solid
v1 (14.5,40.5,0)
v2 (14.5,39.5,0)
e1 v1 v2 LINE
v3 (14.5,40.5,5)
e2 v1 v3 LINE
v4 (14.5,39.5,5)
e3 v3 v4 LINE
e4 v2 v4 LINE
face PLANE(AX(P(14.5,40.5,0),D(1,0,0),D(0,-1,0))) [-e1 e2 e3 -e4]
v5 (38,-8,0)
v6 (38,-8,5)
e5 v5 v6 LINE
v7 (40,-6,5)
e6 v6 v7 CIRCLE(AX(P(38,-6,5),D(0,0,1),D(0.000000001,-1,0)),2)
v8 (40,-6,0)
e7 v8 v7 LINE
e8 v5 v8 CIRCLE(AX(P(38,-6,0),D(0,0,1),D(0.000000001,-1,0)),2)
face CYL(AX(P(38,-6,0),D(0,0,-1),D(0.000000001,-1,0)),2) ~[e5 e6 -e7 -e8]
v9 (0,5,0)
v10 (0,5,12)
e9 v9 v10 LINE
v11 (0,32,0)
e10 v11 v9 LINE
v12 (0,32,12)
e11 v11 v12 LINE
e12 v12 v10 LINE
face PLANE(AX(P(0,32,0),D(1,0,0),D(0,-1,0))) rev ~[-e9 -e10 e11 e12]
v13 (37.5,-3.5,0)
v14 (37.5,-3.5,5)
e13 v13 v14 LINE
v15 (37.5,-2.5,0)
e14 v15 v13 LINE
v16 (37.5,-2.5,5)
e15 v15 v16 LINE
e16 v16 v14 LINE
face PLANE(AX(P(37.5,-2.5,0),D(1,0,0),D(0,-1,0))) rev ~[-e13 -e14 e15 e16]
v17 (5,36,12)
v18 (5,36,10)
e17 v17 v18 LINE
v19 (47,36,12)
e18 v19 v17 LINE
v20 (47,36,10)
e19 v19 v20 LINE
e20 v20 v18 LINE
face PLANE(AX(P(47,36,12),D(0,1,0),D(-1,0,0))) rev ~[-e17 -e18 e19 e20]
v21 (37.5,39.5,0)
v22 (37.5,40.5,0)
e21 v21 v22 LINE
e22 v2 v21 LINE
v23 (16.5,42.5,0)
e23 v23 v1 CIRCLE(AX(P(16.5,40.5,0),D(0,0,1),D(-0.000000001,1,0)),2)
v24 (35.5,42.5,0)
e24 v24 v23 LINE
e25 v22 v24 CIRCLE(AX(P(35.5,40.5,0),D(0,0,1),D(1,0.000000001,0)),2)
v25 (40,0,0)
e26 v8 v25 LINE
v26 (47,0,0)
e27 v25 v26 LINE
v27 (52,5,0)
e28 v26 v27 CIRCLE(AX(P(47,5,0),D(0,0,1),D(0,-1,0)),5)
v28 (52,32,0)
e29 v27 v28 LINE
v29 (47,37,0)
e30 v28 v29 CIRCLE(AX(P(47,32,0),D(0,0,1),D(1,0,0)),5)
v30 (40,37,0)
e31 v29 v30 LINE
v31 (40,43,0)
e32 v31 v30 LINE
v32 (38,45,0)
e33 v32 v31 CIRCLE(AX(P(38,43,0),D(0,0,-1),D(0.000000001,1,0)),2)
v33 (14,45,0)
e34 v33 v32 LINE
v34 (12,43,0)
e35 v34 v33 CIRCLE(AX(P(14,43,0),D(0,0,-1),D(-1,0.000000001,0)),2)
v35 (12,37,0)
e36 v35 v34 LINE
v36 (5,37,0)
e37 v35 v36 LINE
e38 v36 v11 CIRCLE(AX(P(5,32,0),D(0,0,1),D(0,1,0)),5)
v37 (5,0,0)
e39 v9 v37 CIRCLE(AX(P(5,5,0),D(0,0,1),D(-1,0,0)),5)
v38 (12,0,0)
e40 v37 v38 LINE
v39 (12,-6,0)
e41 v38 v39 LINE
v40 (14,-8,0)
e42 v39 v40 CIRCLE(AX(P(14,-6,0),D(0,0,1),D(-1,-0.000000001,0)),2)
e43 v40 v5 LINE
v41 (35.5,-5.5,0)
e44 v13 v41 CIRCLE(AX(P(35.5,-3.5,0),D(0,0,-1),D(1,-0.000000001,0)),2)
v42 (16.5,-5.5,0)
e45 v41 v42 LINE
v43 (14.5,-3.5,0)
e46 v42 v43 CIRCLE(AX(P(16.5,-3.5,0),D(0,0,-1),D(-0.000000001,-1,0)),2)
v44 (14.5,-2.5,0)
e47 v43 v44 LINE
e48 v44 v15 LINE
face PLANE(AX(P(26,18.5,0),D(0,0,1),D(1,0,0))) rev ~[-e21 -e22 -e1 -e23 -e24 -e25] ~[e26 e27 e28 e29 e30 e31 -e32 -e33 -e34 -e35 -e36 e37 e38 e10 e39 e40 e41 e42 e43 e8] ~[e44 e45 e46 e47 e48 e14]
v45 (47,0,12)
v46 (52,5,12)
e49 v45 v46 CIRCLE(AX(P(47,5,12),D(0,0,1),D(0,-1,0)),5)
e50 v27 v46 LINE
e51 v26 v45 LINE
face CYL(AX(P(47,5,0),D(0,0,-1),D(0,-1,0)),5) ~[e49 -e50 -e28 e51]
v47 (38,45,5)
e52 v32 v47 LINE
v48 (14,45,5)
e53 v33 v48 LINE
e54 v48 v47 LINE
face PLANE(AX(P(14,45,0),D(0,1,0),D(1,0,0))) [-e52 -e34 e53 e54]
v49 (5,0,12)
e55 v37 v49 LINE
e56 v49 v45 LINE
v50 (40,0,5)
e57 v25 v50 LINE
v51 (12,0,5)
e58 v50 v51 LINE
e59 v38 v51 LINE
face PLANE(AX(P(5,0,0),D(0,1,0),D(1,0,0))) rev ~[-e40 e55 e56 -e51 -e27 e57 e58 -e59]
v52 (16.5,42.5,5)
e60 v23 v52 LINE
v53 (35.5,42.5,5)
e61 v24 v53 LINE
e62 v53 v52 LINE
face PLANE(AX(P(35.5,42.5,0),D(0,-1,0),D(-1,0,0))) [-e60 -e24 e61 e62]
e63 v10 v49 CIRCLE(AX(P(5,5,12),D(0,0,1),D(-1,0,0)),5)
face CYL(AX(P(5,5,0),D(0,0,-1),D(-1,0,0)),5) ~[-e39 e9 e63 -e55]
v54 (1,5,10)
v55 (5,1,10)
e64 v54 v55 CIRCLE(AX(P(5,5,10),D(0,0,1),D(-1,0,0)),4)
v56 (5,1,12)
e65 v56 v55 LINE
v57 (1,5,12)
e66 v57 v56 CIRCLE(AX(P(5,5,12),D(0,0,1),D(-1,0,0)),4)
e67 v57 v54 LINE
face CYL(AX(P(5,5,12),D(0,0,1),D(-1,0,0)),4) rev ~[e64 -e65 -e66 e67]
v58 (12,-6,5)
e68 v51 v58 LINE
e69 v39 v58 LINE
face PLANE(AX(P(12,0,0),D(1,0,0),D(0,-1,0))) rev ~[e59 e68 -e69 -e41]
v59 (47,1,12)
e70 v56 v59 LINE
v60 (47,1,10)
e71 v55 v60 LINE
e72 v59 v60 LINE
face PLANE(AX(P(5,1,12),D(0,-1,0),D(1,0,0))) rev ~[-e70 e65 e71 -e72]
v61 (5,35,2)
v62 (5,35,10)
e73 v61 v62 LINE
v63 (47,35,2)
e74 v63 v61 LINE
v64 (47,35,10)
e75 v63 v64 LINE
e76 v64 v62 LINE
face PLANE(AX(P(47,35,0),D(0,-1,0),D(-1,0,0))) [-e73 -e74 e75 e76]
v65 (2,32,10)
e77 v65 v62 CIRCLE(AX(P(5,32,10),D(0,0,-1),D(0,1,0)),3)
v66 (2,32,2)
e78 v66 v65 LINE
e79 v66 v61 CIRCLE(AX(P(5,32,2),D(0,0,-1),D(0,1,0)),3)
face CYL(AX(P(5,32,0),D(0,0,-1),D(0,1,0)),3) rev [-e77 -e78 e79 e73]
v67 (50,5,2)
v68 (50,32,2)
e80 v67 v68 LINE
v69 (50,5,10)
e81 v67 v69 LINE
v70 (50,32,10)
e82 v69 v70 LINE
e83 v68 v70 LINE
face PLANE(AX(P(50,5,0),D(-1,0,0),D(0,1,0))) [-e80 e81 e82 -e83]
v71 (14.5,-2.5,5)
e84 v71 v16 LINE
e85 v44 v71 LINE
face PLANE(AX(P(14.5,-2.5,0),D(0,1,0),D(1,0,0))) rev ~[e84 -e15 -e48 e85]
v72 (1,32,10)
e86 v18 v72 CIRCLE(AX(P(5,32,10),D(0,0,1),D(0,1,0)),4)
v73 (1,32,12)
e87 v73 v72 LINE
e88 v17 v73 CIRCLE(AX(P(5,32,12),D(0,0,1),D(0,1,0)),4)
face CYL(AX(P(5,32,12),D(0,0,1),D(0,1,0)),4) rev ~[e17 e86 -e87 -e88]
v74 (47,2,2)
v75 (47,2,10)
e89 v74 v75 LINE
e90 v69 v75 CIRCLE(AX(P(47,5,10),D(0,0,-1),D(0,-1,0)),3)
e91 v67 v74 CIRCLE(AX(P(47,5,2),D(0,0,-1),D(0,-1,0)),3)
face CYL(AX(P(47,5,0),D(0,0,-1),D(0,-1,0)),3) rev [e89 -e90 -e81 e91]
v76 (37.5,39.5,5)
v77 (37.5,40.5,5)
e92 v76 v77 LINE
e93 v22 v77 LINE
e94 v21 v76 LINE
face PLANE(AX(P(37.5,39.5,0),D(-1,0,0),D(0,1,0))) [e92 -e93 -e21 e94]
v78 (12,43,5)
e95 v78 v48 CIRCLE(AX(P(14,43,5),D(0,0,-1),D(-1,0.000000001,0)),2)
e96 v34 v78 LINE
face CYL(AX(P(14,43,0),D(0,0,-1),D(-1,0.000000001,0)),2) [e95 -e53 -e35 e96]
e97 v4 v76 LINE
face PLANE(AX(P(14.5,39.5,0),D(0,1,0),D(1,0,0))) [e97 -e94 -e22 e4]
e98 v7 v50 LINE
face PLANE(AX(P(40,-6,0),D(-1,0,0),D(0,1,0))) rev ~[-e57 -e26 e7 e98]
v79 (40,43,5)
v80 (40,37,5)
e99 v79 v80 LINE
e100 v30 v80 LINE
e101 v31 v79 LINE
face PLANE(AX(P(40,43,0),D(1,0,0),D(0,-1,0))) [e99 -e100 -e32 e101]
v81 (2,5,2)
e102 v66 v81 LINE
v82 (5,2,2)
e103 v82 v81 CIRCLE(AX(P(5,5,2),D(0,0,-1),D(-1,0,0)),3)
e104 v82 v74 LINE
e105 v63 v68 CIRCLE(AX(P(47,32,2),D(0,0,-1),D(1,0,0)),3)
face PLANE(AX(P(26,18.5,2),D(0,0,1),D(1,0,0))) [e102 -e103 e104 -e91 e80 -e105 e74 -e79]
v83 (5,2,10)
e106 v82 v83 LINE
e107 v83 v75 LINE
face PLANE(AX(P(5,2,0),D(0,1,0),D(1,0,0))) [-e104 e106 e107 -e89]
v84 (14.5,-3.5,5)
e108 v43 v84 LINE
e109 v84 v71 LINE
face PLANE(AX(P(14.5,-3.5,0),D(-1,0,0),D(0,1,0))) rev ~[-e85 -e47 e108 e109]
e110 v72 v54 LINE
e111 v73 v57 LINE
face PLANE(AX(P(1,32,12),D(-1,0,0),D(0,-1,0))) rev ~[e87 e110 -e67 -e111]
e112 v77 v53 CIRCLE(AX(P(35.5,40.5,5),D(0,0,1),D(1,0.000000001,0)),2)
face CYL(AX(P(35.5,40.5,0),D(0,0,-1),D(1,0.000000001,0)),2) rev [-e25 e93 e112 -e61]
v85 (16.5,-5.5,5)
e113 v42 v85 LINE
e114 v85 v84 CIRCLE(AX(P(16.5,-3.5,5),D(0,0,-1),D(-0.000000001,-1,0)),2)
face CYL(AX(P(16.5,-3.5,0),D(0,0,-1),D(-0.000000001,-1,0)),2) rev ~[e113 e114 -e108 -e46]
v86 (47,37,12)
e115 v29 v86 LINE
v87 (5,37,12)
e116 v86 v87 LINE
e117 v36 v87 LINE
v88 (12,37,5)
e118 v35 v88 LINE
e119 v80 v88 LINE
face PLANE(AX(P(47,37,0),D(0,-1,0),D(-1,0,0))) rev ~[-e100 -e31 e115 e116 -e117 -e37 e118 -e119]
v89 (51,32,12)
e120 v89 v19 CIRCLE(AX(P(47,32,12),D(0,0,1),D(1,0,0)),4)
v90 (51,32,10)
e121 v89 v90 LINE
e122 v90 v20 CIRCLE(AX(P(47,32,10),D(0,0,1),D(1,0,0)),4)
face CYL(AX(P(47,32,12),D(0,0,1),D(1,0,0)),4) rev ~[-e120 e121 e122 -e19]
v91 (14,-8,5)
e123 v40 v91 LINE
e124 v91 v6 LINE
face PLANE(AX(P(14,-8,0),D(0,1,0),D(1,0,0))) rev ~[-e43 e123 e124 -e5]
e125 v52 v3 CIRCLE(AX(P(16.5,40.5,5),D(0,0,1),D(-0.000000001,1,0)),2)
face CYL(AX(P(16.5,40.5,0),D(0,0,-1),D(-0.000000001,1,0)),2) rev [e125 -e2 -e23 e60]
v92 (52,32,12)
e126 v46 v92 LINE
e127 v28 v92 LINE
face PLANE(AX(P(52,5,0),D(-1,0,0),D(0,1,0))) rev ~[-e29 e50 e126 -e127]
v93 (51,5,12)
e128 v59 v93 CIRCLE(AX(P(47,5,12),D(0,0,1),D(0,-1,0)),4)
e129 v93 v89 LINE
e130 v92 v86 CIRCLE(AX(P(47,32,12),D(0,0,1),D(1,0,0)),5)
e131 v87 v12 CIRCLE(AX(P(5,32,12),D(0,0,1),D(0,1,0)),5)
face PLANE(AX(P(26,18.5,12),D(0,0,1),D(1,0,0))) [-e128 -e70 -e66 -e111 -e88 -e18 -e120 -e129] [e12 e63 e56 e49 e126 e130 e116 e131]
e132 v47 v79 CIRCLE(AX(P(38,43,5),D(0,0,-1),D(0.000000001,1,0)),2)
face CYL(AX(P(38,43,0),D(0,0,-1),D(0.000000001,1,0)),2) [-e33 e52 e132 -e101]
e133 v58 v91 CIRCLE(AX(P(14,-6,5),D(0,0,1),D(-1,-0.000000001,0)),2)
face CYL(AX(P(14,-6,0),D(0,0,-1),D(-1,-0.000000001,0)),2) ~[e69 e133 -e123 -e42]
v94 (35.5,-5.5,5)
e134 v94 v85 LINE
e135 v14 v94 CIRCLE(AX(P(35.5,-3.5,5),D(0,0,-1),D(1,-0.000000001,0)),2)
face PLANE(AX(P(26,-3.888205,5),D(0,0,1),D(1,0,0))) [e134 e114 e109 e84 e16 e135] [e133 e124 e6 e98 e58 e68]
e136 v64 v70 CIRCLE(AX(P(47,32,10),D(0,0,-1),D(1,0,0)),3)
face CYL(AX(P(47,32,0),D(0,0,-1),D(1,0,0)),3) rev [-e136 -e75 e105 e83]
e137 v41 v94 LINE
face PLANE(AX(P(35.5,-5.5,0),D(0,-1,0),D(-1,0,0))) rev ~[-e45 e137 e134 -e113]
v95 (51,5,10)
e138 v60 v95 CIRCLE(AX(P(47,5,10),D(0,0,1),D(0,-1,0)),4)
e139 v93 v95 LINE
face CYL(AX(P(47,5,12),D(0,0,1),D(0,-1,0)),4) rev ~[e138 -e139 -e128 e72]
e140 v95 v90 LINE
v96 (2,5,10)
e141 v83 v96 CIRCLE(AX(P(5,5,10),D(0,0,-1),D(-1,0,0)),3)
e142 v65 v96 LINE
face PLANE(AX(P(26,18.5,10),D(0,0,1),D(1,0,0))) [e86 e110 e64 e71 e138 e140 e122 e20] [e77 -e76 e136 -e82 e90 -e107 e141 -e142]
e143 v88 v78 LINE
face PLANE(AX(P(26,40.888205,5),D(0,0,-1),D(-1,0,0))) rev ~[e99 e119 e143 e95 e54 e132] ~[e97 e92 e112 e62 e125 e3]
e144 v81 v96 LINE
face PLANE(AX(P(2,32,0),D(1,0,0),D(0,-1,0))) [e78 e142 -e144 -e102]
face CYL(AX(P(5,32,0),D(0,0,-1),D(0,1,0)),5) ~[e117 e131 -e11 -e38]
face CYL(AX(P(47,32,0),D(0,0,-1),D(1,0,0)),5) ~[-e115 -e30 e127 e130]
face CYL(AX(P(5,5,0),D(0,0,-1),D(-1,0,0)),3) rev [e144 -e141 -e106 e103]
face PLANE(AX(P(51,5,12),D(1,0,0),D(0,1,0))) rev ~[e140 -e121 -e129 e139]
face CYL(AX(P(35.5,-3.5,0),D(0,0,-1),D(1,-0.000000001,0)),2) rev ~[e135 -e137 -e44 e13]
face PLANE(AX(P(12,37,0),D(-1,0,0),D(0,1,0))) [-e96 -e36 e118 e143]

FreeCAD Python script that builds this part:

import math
import FreeCAD as App
import Part
import Sketcher

V = App.Vector


def faces_at(feature, points):
    """Names of the faces that lie closest to the given points."""
    faces = feature.Shape.Faces
    near = lambda p: min(range(len(faces)), key=lambda i: faces[i].distToShape(Part.Vertex(*p))[0])
    return sorted({f"Face{near(p) + 1}" for p in points})

doc = App.newDocument("Part")
params = doc.addObject("Spreadsheet::Sheet", "Params")
for row, (alias, value) in enumerate([
    ("sketch1_radius", "5 mm"),
    ("sketch1_width", "42 mm"),
    ("sketch1_height", "27 mm"),
    ("pad1_length", "12 mm"),
    ("thickness_wall", "2 mm"),
    ("sketch2_radius", "4 mm"),
    ("sketch2_width", "42 mm"),
    ("sketch2_height", "27 mm"),
    ("pocket1_length", "2 mm"),
    ("sketch3_radius", "2 mm"),
    ("sketch3_width", "28 mm"),
    ("sketch3_width2", "23 mm"),
    ("sketch3_height", "6 mm"),
    ("sketch3_height2", "1 mm"),
    ("pad2_length", "5 mm"),
], start=1):
    params.set(f"A{row}", alias)
    params.set(f"B{row}", "=" + value)
    params.setAlias(f"B{row}", alias)

body = doc.addObject("PartDesign::Body", "Body")

sketch1 = body.newObject("Sketcher::SketchObject", "Sketch")
sketch1.AttachmentSupport = (doc.getObject("XY_Plane"), [""])
sketch1.MapMode = "FlatFace"
sketch1.addGeometry([
    Part.LineSegment(V(5, 0, 0), V(47, 0, 0)),
    Part.ArcOfCircle(Part.Circle(V(47, 5, 0), V(0, 0, 1), 5), math.radians(-90), math.radians(0)),
    Part.LineSegment(V(52, 5, 0), V(52, 32, 0)),
    Part.ArcOfCircle(Part.Circle(V(47, 32, 0), V(0, 0, 1), 5), math.radians(0), math.radians(90)),
    Part.LineSegment(V(47, 37, 0), V(5, 37, 0)),
    Part.ArcOfCircle(Part.Circle(V(5, 32, 0), V(0, 0, 1), 5), math.radians(90), math.radians(180)),
    Part.LineSegment(V(0, 32, 0), V(0, 5, 0)),
    Part.ArcOfCircle(Part.Circle(V(5, 5, 0), V(0, 0, 1), 5), math.radians(180), math.radians(270)),
], False)
sketch1.addConstraint([
    Sketcher.Constraint("Tangent", 0, 2, 1, 1),
    Sketcher.Constraint("Tangent", 1, 2, 2, 1),
    Sketcher.Constraint("Tangent", 2, 2, 3, 1),
    Sketcher.Constraint("Tangent", 3, 2, 4, 1),
    Sketcher.Constraint("Tangent", 4, 2, 5, 1),
    Sketcher.Constraint("Tangent", 5, 2, 6, 1),
    Sketcher.Constraint("Tangent", 6, 2, 7, 1),
    Sketcher.Constraint("Tangent", 7, 2, 0, 1),
    Sketcher.Constraint("Horizontal", 0),
    Sketcher.Constraint("Vertical", 2),
    Sketcher.Constraint("Horizontal", 4),
    Sketcher.Constraint("Vertical", 6),
    Sketcher.Constraint("Equal", 1, 3),
    Sketcher.Constraint("Equal", 3, 5),
    Sketcher.Constraint("Equal", 5, 7),
    Sketcher.Constraint("PointOnObject", 0, 2, -1),
    Sketcher.Constraint("PointOnObject", 5, 2, -2),
    Sketcher.Constraint("Radius", 1, 5.0),
    Sketcher.Constraint("DistanceX", 0, 1, 0, 2, 42.0),
    Sketcher.Constraint("DistanceY", 2, 1, 2, 2, 27.0),
])
sketch1.setExpression("Constraints[17]", "Params.sketch1_radius")
sketch1.setExpression("Constraints[18]", "Params.sketch1_width")
sketch1.setExpression("Constraints[19]", "Params.sketch1_height")
pad1 = body.newObject("PartDesign::Pad", "Pad")
pad1.Profile = sketch1
pad1.setExpression("Length", "Params.pad1_length")
doc.recompute()

thickness = body.newObject("PartDesign::Thickness", "Thickness")
thickness.Base = (pad1, faces_at(pad1, [(26, 18.5, 12)]))
thickness.setExpression("Value", "Params.thickness_wall")
thickness.Reversed = True
thickness.Join = "Intersection"

sketch2 = body.newObject("Sketcher::SketchObject", "Sketch001")
sketch2.AttachmentSupport = (doc.getObject("XY_Plane"), [""])
sketch2.MapMode = "FlatFace"
sketch2.AttachmentOffset = App.Placement(V(0, 0, 12), App.Rotation())
sketch2.addGeometry([
    Part.ArcOfCircle(Part.Circle(V(47, 32, 0), V(0, 0, 1), 4), math.radians(0), math.radians(90)),
    Part.LineSegment(V(47, 36, 0), V(5, 36, 0)),
    Part.ArcOfCircle(Part.Circle(V(5, 32, 0), V(0, 0, 1), 4), math.radians(90), math.radians(180)),
    Part.LineSegment(V(1, 32, 0), V(1, 5, 0)),
    Part.ArcOfCircle(Part.Circle(V(5, 5, 0), V(0, 0, 1), 4), math.radians(180), math.radians(270)),
    Part.LineSegment(V(5, 1, 0), V(47, 1, 0)),
    Part.ArcOfCircle(Part.Circle(V(47, 5, 0), V(0, 0, 1), 4), math.radians(-90), math.radians(0)),
    Part.LineSegment(V(51, 5, 0), V(51, 32, 0)),
], False)
sketch2.addConstraint([
    Sketcher.Constraint("Tangent", 0, 2, 1, 1),
    Sketcher.Constraint("Tangent", 1, 2, 2, 1),
    Sketcher.Constraint("Tangent", 2, 2, 3, 1),
    Sketcher.Constraint("Tangent", 3, 2, 4, 1),
    Sketcher.Constraint("Tangent", 4, 2, 5, 1),
    Sketcher.Constraint("Tangent", 5, 2, 6, 1),
    Sketcher.Constraint("Tangent", 6, 2, 7, 1),
    Sketcher.Constraint("Tangent", 7, 2, 0, 1),
    Sketcher.Constraint("Horizontal", 1),
    Sketcher.Constraint("Vertical", 3),
    Sketcher.Constraint("Horizontal", 5),
    Sketcher.Constraint("Vertical", 7),
    Sketcher.Constraint("Equal", 0, 2),
    Sketcher.Constraint("Equal", 2, 4),
    Sketcher.Constraint("Equal", 4, 6),
    Sketcher.Constraint("Radius", 0, 4.0),
    Sketcher.Constraint("DistanceX", 1, 2, 1, 1, 42.0),
    Sketcher.Constraint("DistanceY", 3, 2, 3, 1, 27.0),
    Sketcher.Constraint("DistanceX", -1, 1, 0, 3, 47.0),
    Sketcher.Constraint("DistanceY", -1, 1, 0, 3, 32.0),
])
sketch2.setExpression("Constraints[15]", "Params.sketch2_radius")
sketch2.setExpression("Constraints[16]", "Params.sketch2_width")
sketch2.setExpression("Constraints[17]", "Params.sketch2_height")
pocket1 = body.newObject("PartDesign::Pocket", "Pocket")
pocket1.Profile = sketch2
pocket1.setExpression("Length", "Params.pocket1_length")

sketch3 = body.newObject("Sketcher::SketchObject", "Sketch002")
sketch3.AttachmentSupport = (doc.getObject("XY_Plane"), [""])
sketch3.MapMode = "FlatFace"
sketch3.addGeometry([
    Part.LineSegment(V(40, 37, 0), V(12, 37, 0)),
    Part.LineSegment(V(12, 37, 0), V(12, 43, 0)),
    Part.ArcOfCircle(Part.Circle(V(14, 43, 0), V(0, 0, 1), 2), math.radians(90), math.radians(180)),
    Part.LineSegment(V(14, 45, 0), V(38, 45, 0)),
    Part.ArcOfCircle(Part.Circle(V(38, 43, 0), V(0, 0, 1), 2), math.radians(0), math.radians(90)),
    Part.LineSegment(V(40, 43, 0), V(40, 37, 0)),
    Part.LineSegment(V(14.5, 39.5, 0), V(37.5, 39.5, 0)),
    Part.LineSegment(V(37.5, 39.5, 0), V(37.5, 40.5, 0)),
    Part.ArcOfCircle(Part.Circle(V(35.5, 40.5, 0), V(0, 0, 1), 2), math.radians(0), math.radians(90)),
    Part.LineSegment(V(35.5, 42.5, 0), V(16.5, 42.5, 0)),
    Part.ArcOfCircle(Part.Circle(V(16.5, 40.5, 0), V(0, 0, 1), 2), math.radians(90), math.radians(180)),
    Part.LineSegment(V(14.5, 40.5, 0), V(14.5, 39.5, 0)),
    Part.LineSegment(V(12, 0, 0), V(40, 0, 0)),
    Part.LineSegment(V(40, 0, 0), V(40, -6, 0)),
    Part.ArcOfCircle(Part.Circle(V(38, -6, 0), V(0, 0, 1), 2), math.radians(-90), math.radians(0)),
    Part.LineSegment(V(38, -8, 0), V(14, -8, 0)),
    Part.ArcOfCircle(Part.Circle(V(14, -6, 0), V(0, 0, 1), 2), math.radians(-180), math.radians(-90)),
    Part.LineSegment(V(12, -6, 0), V(12, 0, 0)),
    Part.LineSegment(V(37.5, -2.5, 0), V(14.5, -2.5, 0)),
    Part.LineSegment(V(14.5, -2.5, 0), V(14.5, -3.5, 0)),
    Part.ArcOfCircle(Part.Circle(V(16.5, -3.5, 0), V(0, 0, 1), 2), math.radians(-180), math.radians(-90)),
    Part.LineSegment(V(16.5, -5.5, 0), V(35.5, -5.5, 0)),
    Part.ArcOfCircle(Part.Circle(V(35.5, -3.5, 0), V(0, 0, 1), 2), math.radians(-90), math.radians(0)),
    Part.LineSegment(V(37.5, -3.5, 0), V(37.5, -2.5, 0)),
], False)
sketch3.addConstraint([
    Sketcher.Constraint("Coincident", 0, 2, 1, 1),
    Sketcher.Constraint("Tangent", 1, 2, 2, 2),
    Sketcher.Constraint("Tangent", 2, 1, 3, 1),
    Sketcher.Constraint("Tangent", 3, 2, 4, 2),
    Sketcher.Constraint("Tangent", 4, 1, 5, 1),
    Sketcher.Constraint("Coincident", 5, 2, 0, 1),
    Sketcher.Constraint("Coincident", 6, 2, 7, 1),
    Sketcher.Constraint("Tangent", 7, 2, 8, 1),
    Sketcher.Constraint("Tangent", 8, 2, 9, 1),
    Sketcher.Constraint("Tangent", 9, 2, 10, 1),
    Sketcher.Constraint("Tangent", 10, 2, 11, 1),
    Sketcher.Constraint("Coincident", 11, 2, 6, 1),
    Sketcher.Constraint("Coincident", 12, 2, 13, 1),
    Sketcher.Constraint("Tangent", 13, 2, 14, 2),
    Sketcher.Constraint("Tangent", 14, 1, 15, 1),
    Sketcher.Constraint("Tangent", 15, 2, 16, 2),
    Sketcher.Constraint("Tangent", 16, 1, 17, 1),
    Sketcher.Constraint("Coincident", 17, 2, 12, 1),
    Sketcher.Constraint("Coincident", 18, 2, 19, 1),
    Sketcher.Constraint("Tangent", 19, 2, 20, 1),
    Sketcher.Constraint("Tangent", 20, 2, 21, 1),
    Sketcher.Constraint("Tangent", 21, 2, 22, 1),
    Sketcher.Constraint("Tangent", 22, 2, 23, 1),
    Sketcher.Constraint("Coincident", 23, 2, 18, 1),
    Sketcher.Constraint("Horizontal", 0),
    Sketcher.Constraint("Vertical", 1),
    Sketcher.Constraint("Horizontal", 3),
    Sketcher.Constraint("Vertical", 5),
    Sketcher.Constraint("Horizontal", 6),
    Sketcher.Constraint("Vertical", 7),
    Sketcher.Constraint("Horizontal", 9),
    Sketcher.Constraint("Vertical", 11),
    Sketcher.Constraint("Horizontal", 12),
    Sketcher.Constraint("Vertical", 13),
    Sketcher.Constraint("Horizontal", 15),
    Sketcher.Constraint("Vertical", 17),
    Sketcher.Constraint("Horizontal", 18),
    Sketcher.Constraint("Vertical", 19),
    Sketcher.Constraint("Horizontal", 21),
    Sketcher.Constraint("Vertical", 23),
    Sketcher.Constraint("Equal", 2, 4),
    Sketcher.Constraint("Equal", 4, 8),
    Sketcher.Constraint("Equal", 8, 10),
    Sketcher.Constraint("Equal", 10, 14),
    Sketcher.Constraint("Equal", 14, 16),
    Sketcher.Constraint("Equal", 16, 20),
    Sketcher.Constraint("Equal", 20, 22),
    Sketcher.Constraint("PointOnObject", 12, 2, -1),
    Sketcher.Constraint("Vertical", 4, 3, 14, 3),
    Sketcher.Constraint("Vertical", 2, 3, 16, 3),
    Sketcher.Constraint("Vertical", 10, 3, 20, 3),
    Sketcher.Constraint("Vertical", 8, 3, 22, 3),
    Sketcher.Constraint("Equal", 5, 13),
    Sketcher.Constraint("Equal", 11, 19),
    Sketcher.Constraint("Radius", 2, 2.0),
    Sketcher.Constraint("DistanceX", 0, 2, 0, 1, 28.0),
    Sketcher.Constraint("DistanceX", 6, 1, 6, 2, 23.0),
    Sketcher.Constraint("DistanceY", 1, 1, 1, 2, 6.0),
    Sketcher.Constraint("DistanceY", 7, 1, 7, 2, 1.0),
    Sketcher.Constraint("DistanceX", -1, 1, 2, 3, 14.0),
    Sketcher.Constraint("DistanceY", -1, 1, 2, 3, 43.0),
    Sketcher.Constraint("DistanceY", 20, 3, 10, 3, 44.0),
    Sketcher.Constraint("DistanceX", -1, 1, 8, 3, 35.5),
    Sketcher.Constraint("DistanceY", -1, 1, 8, 3, 40.5),
])
sketch3.setExpression("Constraints[54]", "Params.sketch3_radius")
sketch3.setExpression("Constraints[55]", "Params.sketch3_width")
sketch3.setExpression("Constraints[56]", "Params.sketch3_width2")
sketch3.setExpression("Constraints[57]", "Params.sketch3_height")
sketch3.setExpression("Constraints[58]", "Params.sketch3_height2")
pad2 = body.newObject("PartDesign::Pad", "Pad001")
pad2.Profile = sketch3
pad2.setExpression("Length", "Params.pad2_length")

doc.recompute()
